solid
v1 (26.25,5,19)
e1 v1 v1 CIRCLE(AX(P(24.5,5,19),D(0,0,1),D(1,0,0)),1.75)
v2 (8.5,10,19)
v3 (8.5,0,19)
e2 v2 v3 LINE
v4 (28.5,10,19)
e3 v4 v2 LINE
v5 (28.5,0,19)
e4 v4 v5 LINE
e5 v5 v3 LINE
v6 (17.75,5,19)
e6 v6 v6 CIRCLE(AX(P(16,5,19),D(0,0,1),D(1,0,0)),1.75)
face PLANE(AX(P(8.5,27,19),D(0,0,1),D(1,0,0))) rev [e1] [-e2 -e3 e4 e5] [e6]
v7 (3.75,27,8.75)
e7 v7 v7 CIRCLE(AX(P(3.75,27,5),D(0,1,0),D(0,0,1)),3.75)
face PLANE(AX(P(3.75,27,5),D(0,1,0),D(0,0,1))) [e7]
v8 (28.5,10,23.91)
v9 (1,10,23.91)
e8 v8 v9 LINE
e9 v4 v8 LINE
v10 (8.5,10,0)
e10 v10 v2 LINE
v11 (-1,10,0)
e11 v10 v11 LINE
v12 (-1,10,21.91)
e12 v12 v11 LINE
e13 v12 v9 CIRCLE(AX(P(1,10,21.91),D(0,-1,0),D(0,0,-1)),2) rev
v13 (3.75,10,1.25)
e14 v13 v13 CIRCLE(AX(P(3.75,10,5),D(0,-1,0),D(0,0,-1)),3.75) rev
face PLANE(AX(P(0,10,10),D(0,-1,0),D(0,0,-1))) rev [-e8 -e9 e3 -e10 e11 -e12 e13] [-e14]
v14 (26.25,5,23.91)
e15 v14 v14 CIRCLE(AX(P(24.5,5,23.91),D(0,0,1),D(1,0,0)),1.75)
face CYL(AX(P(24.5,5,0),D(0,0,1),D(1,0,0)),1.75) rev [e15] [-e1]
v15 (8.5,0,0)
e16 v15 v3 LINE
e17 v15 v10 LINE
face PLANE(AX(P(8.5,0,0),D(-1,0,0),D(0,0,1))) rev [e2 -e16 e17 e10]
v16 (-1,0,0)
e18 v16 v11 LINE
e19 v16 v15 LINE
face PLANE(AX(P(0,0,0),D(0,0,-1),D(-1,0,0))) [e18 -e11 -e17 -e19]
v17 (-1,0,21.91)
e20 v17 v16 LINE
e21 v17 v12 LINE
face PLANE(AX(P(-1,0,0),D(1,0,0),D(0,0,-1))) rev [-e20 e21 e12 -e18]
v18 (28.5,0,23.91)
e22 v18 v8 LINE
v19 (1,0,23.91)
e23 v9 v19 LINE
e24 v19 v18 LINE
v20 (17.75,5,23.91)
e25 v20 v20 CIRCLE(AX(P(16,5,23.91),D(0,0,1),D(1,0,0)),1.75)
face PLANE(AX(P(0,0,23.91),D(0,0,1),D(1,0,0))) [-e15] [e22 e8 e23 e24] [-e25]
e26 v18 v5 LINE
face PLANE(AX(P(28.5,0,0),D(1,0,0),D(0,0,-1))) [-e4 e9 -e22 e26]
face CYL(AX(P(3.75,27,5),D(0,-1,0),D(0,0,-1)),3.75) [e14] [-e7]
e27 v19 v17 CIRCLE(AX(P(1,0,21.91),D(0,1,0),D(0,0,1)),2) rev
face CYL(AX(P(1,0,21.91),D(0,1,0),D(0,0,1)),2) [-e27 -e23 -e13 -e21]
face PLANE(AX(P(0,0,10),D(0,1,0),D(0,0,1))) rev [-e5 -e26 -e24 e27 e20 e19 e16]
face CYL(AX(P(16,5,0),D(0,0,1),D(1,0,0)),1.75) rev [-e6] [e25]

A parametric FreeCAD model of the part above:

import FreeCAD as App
import Part
import Sketcher

V = App.Vector


def edges_at(feature, points):
    """Names of the edges that pass closest to the given points."""
    edges = feature.Shape.Edges
    near = lambda p: min(range(len(edges)), key=lambda i: edges[i].distToShape(Part.Vertex(*p))[0])
    return sorted({f"Edge{near(p) + 1}" for p in points})

doc = App.newDocument("Part")
params = doc.addObject("Spreadsheet::Sheet", "Params")
for row, (alias, value) in enumerate([
    ("sketch1_height", "10 mm"),
    ("sketch1_width", "12.5 mm"),
    ("pad1_length", "10 mm"),
    ("sketch2_width", "10 mm"),
    ("pad2_length", "5 mm"),
    ("sketch3_diameter", "7.5 mm"),
    ("pad3_length", "17 mm"),
    ("sketch4_width", "4 mm"),
    ("sketch4_height", "10 mm"),
    ("sketch5_height", "10 mm"),
    ("sketch5_width", "9.5 mm"),
    ("pad4_length", "12.5 mm"),
    ("sketch6_width", "10 mm"),
    ("sketch6_height", "5 mm"),
    ("pad5_length", "30 mm"),
    ("sketch7_diameter", "3.5 mm"),
    ("sketch8_width", "30 mm"),
    ("sketch8_height", "5 mm"),
    ("pocket3_length", "10 mm"),
    ("sketch9_height", "10 mm"),
    ("sketch9_width", "9.5 mm"),
    ("pocket4_length", "3.49 mm"),
    ("sketch10_height", "10 mm"),
    ("sketch10_width", "9.5 mm"),
    ("pad6_length", "3.9 mm"),
    ("sketch11_width", "10 mm"),
    ("sketch11_height", "4 mm"),
    ("pad7_length", "20 mm"),
    ("sketch12_width", "20 mm"),
    ("sketch12_height", "0.09 mm"),
    ("sketch13_diameter", "3.5 mm"),
    ("sketch14_diameter", "3.5 mm"),
    ("sketch14_height", "10 mm"),
    ("sketch14_width", "29.5 mm"),
    ("pad8_length", "1 mm"),
    ("fillet_radius", "2 mm"),
], start=1):
    params.set(f"A{row}", alias)
    params.set(f"B{row}", "=" + value)
    params.setAlias(f"B{row}", alias)

body = doc.addObject("PartDesign::Body", "Body")

# Sketch on XY plane
sketch1 = body.newObject("Sketcher::SketchObject", "Sketch")
sketch1.AttachmentSupport = (doc.getObject("XY_Plane"), [""])
sketch1.MapMode = "FlatFace"
sketch1.addGeometry([
    Part.LineSegment(V(0, 10, 0), V(0, 0, 0)),
    Part.LineSegment(V(0, 0, 0), V(12, 0, 0)),
    Part.LineSegment(V(12, 0, 0), V(12, 10, 0)),
    Part.LineSegment(V(12, 10, 0), V(0, 10, 0)),
], False)
sketch1.addConstraint([
    Sketcher.Constraint("Coincident", 0, 2, 1, 1),
    Sketcher.Constraint("Coincident", 1, 2, 2, 1),
    Sketcher.Constraint("Coincident", 2, 2, 3, 1),
    Sketcher.Constraint("Coincident", 3, 2, 0, 1),
    Sketcher.Constraint("Vertical", 0),
    Sketcher.Constraint("Horizontal", 1),
    Sketcher.Constraint("Vertical", 2),
    Sketcher.Constraint("Horizontal", 3),
    Sketcher.Constraint("Coincident", 0, 2, -1, 1),
    Sketcher.Constraint("DistanceY", 0, 2, 0, 1, 10.0),
    Sketcher.Constraint("DistanceX", 1, 1, 1, 2, 12.5),
])
sketch1.setExpression("Constraints[9]", "Params.sketch1_height")
sketch1.setExpression("Constraints[10]", "Params.sketch1_width")
pad1 = body.newObject("PartDesign::Pad", "Pad")
pad1.Profile = sketch1
pad1.setExpression("Length", "Params.pad1_length")

# Sketch on YZ plane
sketch2 = body.newObject("Sketcher::SketchObject", "Sketch001")
sketch2.AttachmentSupport = (doc.getObject("YZ_Plane"), [""])
sketch2.MapMode = "FlatFace"
sketch2.addGeometry([
    Part.LineSegment(V(10, 0, 0), V(0, 0, 0)),
    Part.LineSegment(V(0, 0, 0), V(0, 10, 0)),
    Part.LineSegment(V(0, 10, 0), V(10, 10, 0)),
    Part.LineSegment(V(10, 10, 0), V(10, 0, 0)),
], False)
sketch2.addConstraint([
    Sketcher.Constraint("Coincident", 0, 2, 1, 1),
    Sketcher.Constraint("Coincident", 1, 2, 2, 1),
    Sketcher.Constraint("Coincident", 2, 2, 3, 1),
    Sketcher.Constraint("Coincident", 3, 2, 0, 1),
    Sketcher.Constraint("Horizontal", 0),
    Sketcher.Constraint("Vertical", 1),
    Sketcher.Constraint("Horizontal", 2),
    Sketcher.Constraint("Vertical", 3),
    Sketcher.Constraint("Coincident", 0, 2, -1, 1),
    Sketcher.Constraint("Equal", 2, 1),
    Sketcher.Constraint("DistanceX", 0, 2, 0, 1, 10.0),
])
sketch2.setExpression("Constraints[10]", "Params.sketch2_width")
pad2 = body.newObject("PartDesign::Pad", "Pad001")
pad2.Profile = sketch2
pad2.setExpression("Length", "Params.pad2_length")
pad2.Reversed = True

# Sketch on XZ plane
sketch3 = body.newObject("Sketcher::SketchObject", "Sketch002")
sketch3.AttachmentSupport = (doc.getObject("XZ_Plane"), [""])
sketch3.MapMode = "FlatFace"
sketch3.AttachmentOffset = App.Placement(V(0, 0, -10), App.Rotation())
sketch3.addGeometry(Part.Circle(V(3.8, 5, 0), V(0, 0, 1), 3.8), False)
sketch3.addConstraint([
    Sketcher.Constraint("Diameter", 0, 7.5),
    Sketcher.Constraint("DistanceY", -1, 1, 0, 3, 5.0),
    Sketcher.Constraint("DistanceX", -1, 1, 0, 3, 3.75),
])
sketch3.setExpression("Constraints[0]", "Params.sketch3_diameter")
pad3 = body.newObject("PartDesign::Pad", "Pad002")
pad3.Profile = sketch3
pad3.setExpression("Length", "Params.pad3_length")
pad3.Reversed = True

# Sketch on XZ plane
sketch4 = body.newObject("Sketcher::SketchObject", "Sketch003")
sketch4.AttachmentSupport = (doc.getObject("XZ_Plane"), [""])
sketch4.MapMode = "FlatFace"
sketch4.AttachmentOffset = App.Placement(V(0, 0, -10), App.Rotation())
sketch4.addGeometry([
    Part.LineSegment(V(8.5, 0, 0), V(8.5, 10, 0)),  # 0
    Part.LineSegment(V(8.5, 10, 0), V(12.5, 10, 0)),  # 1
    Part.LineSegment(V(12.5, 10, 0), V(12.5, 0, 0)),  # 2
    Part.LineSegment(V(12.5, 0, 0), V(8.5, 0, 0)),  # 3
    Part.LineSegment(V(-5, 0, 0), V(-5, 10, 0)),  # 4
    Part.LineSegment(V(-5, 10, 0), V(-1, 10, 0)),  # 5
    Part.LineSegment(V(-1, 10, 0), V(-1, 0, 0)),  # 6
    Part.LineSegment(V(-1, 0, 0), V(-5, 0, 0)),  # 7
], False)
sketch4.addConstraint([
    Sketcher.Constraint("Coincident", 0, 2, 1, 1),
    Sketcher.Constraint("Coincident", 1, 2, 2, 1),
    Sketcher.Constraint("Coincident", 2, 2, 3, 1),
    Sketcher.Constraint("Coincident", 3, 2, 0, 1),
    Sketcher.Constraint("Coincident", 4, 2, 5, 1),
    Sketcher.Constraint("Coincident", 5, 2, 6, 1),
    Sketcher.Constraint("Coincident", 6, 2, 7, 1),
    Sketcher.Constraint("Coincident", 7, 2, 4, 1),
    Sketcher.Constraint("Vertical", 0),
    Sketcher.Constraint("Horizontal", 1),
    Sketcher.Constraint("Vertical", 2),
    Sketcher.Constraint("Horizontal", 3),
    Sketcher.Constraint("Vertical", 4),
    Sketcher.Constraint("Horizontal", 5),
    Sketcher.Constraint("Vertical", 6),
    Sketcher.Constraint("Horizontal", 7),
    Sketcher.Constraint("PointOnObject", 2, 2, -1),
    Sketcher.Constraint("PointOnObject", 6, 2, -1),
    Sketcher.Constraint("Horizontal", 1, 2, 4, 2),
    Sketcher.Constraint("Equal", 3, 5),
    Sketcher.Constraint("DistanceX", 1, 1, 1, 2, 4.0),
    Sketcher.Constraint("DistanceY", 0, 1, 0, 2, 10.0),
    Sketcher.Constraint("DistanceX", 4, 2, -1, 1, 5.0),
    Sketcher.Constraint("DistanceX", -1, 1, 0, 2, 8.5),
])
sketch4.setExpression("Constraints[20]", "Params.sketch4_width")
sketch4.setExpression("Constraints[21]", "Params.sketch4_height")
pocket1 = body.newObject("PartDesign::Pocket", "Pocket")
pocket1.Profile = sketch4
pocket1.Type = "ThroughAll"
pocket1.Reversed = True

# Sketch on XY plane
sketch5 = body.newObject("Sketcher::SketchObject", "Sketch004")
sketch5.AttachmentSupport = (doc.getObject("XY_Plane"), [""])
sketch5.MapMode = "FlatFace"
sketch5.AttachmentOffset = App.Placement(V(0, 0, 10), App.Rotation())
sketch5.addGeometry([
    Part.LineSegment(V(-1, 10, 0), V(-1, 0, 0)),
    Part.LineSegment(V(-1, 0, 0), V(8, 0, 0)),
    Part.LineSegment(V(8, 0, 0), V(8, 10, 0)),
    Part.LineSegment(V(8, 10, 0), V(-1, 10, 0)),
], False)
sketch5.addConstraint([
    Sketcher.Constraint("Coincident", 0, 2, 1, 1),
    Sketcher.Constraint("Coincident", 1, 2, 2, 1),
    Sketcher.Constraint("Coincident", 2, 2, 3, 1),
    Sketcher.Constraint("Coincident", 3, 2, 0, 1),
    Sketcher.Constraint("Vertical", 0),
    Sketcher.Constraint("Horizontal", 1),
    Sketcher.Constraint("Vertical", 2),
    Sketcher.Constraint("Horizontal", 3),
    Sketcher.Constraint("PointOnObject", 0, 2, -1),
    Sketcher.Constraint("DistanceY", 0, 2, 0, 1, 10.0),
    Sketcher.Constraint("DistanceX", 1, 1, 1, 2, 9.5),
    Sketcher.Constraint("DistanceX", 0, 2, -1, 1, 1.0),
])
sketch5.setExpression("Constraints[9]", "Params.sketch5_height")
sketch5.setExpression("Constraints[10]", "Params.sketch5_width")
pad4 = body.newObject("PartDesign::Pad", "Pad003")
pad4.Profile = sketch5
pad4.setExpression("Length", "Params.pad4_length")

# Sketch on YZ plane
sketch6 = body.newObject("Sketcher::SketchObject", "Sketch005")
sketch6.AttachmentSupport = (doc.getObject("YZ_Plane"), [""])
sketch6.MapMode = "FlatFace"
sketch6.AttachmentOffset = App.Placement(V(0, 0, 8.5), App.Rotation())
sketch6.addGeometry([
    Part.LineSegment(V(10, 22, 0), V(0, 22, 0)),
    Part.LineSegment(V(0, 22, 0), V(0, 18, 0)),
    Part.LineSegment(V(0, 18, 0), V(10, 18, 0)),
    Part.LineSegment(V(10, 18, 0), V(10, 22, 0)),
], False)
sketch6.addConstraint([
    Sketcher.Constraint("Coincident", 0, 2, 1, 1),
    Sketcher.Constraint("Coincident", 1, 2, 2, 1),
    Sketcher.Constraint("Coincident", 2, 2, 3, 1),
    Sketcher.Constraint("Coincident", 3, 2, 0, 1),
    Sketcher.Constraint("Horizontal", 0),
    Sketcher.Constraint("Vertical", 1),
    Sketcher.Constraint("Horizontal", 2),
    Sketcher.Constraint("Vertical", 3),
    Sketcher.Constraint("PointOnObject", 0, 2, -2),
    Sketcher.Constraint("DistanceX", 0, 2, 0, 1, 10.0),
    Sketcher.Constraint("DistanceY", 1, 2, 1, 1, 5.0),
    Sketcher.Constraint("DistanceY", -1, 1, 0, 2, 22.5),
])
sketch6.setExpression("Constraints[9]", "Params.sketch6_width")
sketch6.setExpression("Constraints[10]", "Params.sketch6_height")
pad5 = body.newObject("PartDesign::Pad", "Pad004")
pad5.Profile = sketch6
pad5.setExpression("Length", "Params.pad5_length")

# Sketch on XY plane
sketch7 = body.newObject("Sketcher::SketchObject", "Sketch006")
sketch7.AttachmentSupport = (doc.getObject("XY_Plane"), [""])
sketch7.MapMode = "FlatFace"
sketch7.AttachmentOffset = App.Placement(V(0, 0, 22.5), App.Rotation())
sketch7.addGeometry([
    Part.Circle(V(22.5, 5, 0), V(0, 0, 1), 1.8),
    Part.Circle(V(33.5, 5, 0), V(0, 0, 1), 1.8),
], False)
sketch7.addConstraint([
    Sketcher.Constraint("Equal", 0, 1),
    Sketcher.Constraint("Horizontal", 0, 3, 1, 3),
    Sketcher.Constraint("Diameter", 0, 3.5),
    Sketcher.Constraint("DistanceY", -1, 1, 0, 3, 5.0),
    Sketcher.Constraint("DistanceX", 0, 3, 1, 3, 11.0),
    Sketcher.Constraint("DistanceX", -1, 1, 0, 3, 22.5),
])
sketch7.setExpression("Constraints[2]", "Params.sketch7_diameter")
pocket2 = body.newObject("PartDesign::Pocket", "Pocket001")
pocket2.Profile = sketch7
pocket2.Type = "ThroughAll"

# Sketch on XZ plane
sketch8 = body.newObject("Sketcher::SketchObject", "Sketch007")
sketch8.AttachmentSupport = (doc.getObject("XZ_Plane"), [""])
sketch8.MapMode = "FlatFace"
sketch8.AttachmentOffset = App.Placement(V(0, 0, -10), App.Rotation())
sketch8.addGeometry([
    Part.LineSegment(V(8, 18, 0), V(8, 22, 0)),
    Part.LineSegment(V(8, 22, 0), V(38, 22, 0)),
    Part.LineSegment(V(38, 22, 0), V(38, 18, 0)),
    Part.LineSegment(V(38, 18, 0), V(8, 18, 0)),
], False)
sketch8.addConstraint([
    Sketcher.Constraint("Coincident", 0, 2, 1, 1),
    Sketcher.Constraint("Coincident", 1, 2, 2, 1),
    Sketcher.Constraint("Coincident", 2, 2, 3, 1),
    Sketcher.Constraint("Coincident", 3, 2, 0, 1),
    Sketcher.Constraint("Vertical", 0),
    Sketcher.Constraint("Horizontal", 1),
    Sketcher.Constraint("Vertical", 2),
    Sketcher.Constraint("Horizontal", 3),
    Sketcher.Constraint("DistanceX", 1, 1, 1, 2, 30.0),
    Sketcher.Constraint("DistanceY", 0, 1, 0, 2, 5.0),
    Sketcher.Constraint("DistanceX", -1, 1, 0, 2, 8.5),
    Sketcher.Constraint("DistanceY", -1, 1, 0, 2, 22.5),
])
sketch8.setExpression("Constraints[8]", "Params.sketch8_width")
sketch8.setExpression("Constraints[9]", "Params.sketch8_height")
pocket3 = body.newObject("PartDesign::Pocket", "Pocket002")
pocket3.Profile = sketch8
pocket3.setExpression("Length", "Params.pocket3_length")
pocket3.Reversed = True

# Sketch on XY plane
sketch9 = body.newObject("Sketcher::SketchObject", "Sketch008")
sketch9.AttachmentSupport = (doc.getObject("XY_Plane"), [""])
sketch9.MapMode = "FlatFace"
sketch9.AttachmentOffset = App.Placement(V(0, 0, 22.5), App.Rotation())
sketch9.addGeometry([
    Part.LineSegment(V(-1, 10, 0), V(-1, 0, 0)),
    Part.LineSegment(V(-1, 0, 0), V(8, 0, 0)),
    Part.LineSegment(V(8, 0, 0), V(8, 10, 0)),
    Part.LineSegment(V(8, 10, 0), V(-1, 10, 0)),
], False)
sketch9.addConstraint([
    Sketcher.Constraint("Coincident", 0, 2, 1, 1),
    Sketcher.Constraint("Coincident", 1, 2, 2, 1),
    Sketcher.Constraint("Coincident", 2, 2, 3, 1),
    Sketcher.Constraint("Coincident", 3, 2, 0, 1),
    Sketcher.Constraint("Vertical", 0),
    Sketcher.Constraint("Horizontal", 1),
    Sketcher.Constraint("Vertical", 2),
    Sketcher.Constraint("Horizontal", 3),
    Sketcher.Constraint("PointOnObject", 0, 2, -1),
    Sketcher.Constraint("DistanceY", 0, 2, 0, 1, 10.0),
    Sketcher.Constraint("DistanceX", 1, 1, 1, 2, 9.5),
    Sketcher.Constraint("DistanceX", 0, 2, -1, 1, 1.0),
])
sketch9.setExpression("Constraints[9]", "Params.sketch9_height")
sketch9.setExpression("Constraints[10]", "Params.sketch9_width")
pocket4 = body.newObject("PartDesign::Pocket", "Pocket003")
pocket4.Profile = sketch9
pocket4.setExpression("Length", "Params.pocket4_length")

# Sketch on XY plane
sketch10 = body.newObject("Sketcher::SketchObject", "Sketch009")
sketch10.AttachmentSupport = (doc.getObject("XY_Plane"), [""])
sketch10.MapMode = "FlatFace"
sketch10.AttachmentOffset = App.Placement(V(0, 0, 19.01), App.Rotation())
sketch10.addGeometry([
    Part.LineSegment(V(-1, 10, 0), V(-1, 0, 0)),
    Part.LineSegment(V(-1, 0, 0), V(8, 0, 0)),
    Part.LineSegment(V(8, 0, 0), V(8, 10, 0)),
    Part.LineSegment(V(8, 10, 0), V(-1, 10, 0)),
], False)
sketch10.addConstraint([
    Sketcher.Constraint("Coincident", 0, 2, 1, 1),
    Sketcher.Constraint("Coincident", 1, 2, 2, 1),
    Sketcher.Constraint("Coincident", 2, 2, 3, 1),
    Sketcher.Constraint("Coincident", 3, 2, 0, 1),
    Sketcher.Constraint("Vertical", 0),
    Sketcher.Constraint("Horizontal", 1),
    Sketcher.Constraint("Vertical", 2),
    Sketcher.Constraint("Horizontal", 3),
    Sketcher.Constraint("PointOnObject", 0, 2, -1),
    Sketcher.Constraint("DistanceY", 0, 2, 0, 1, 10.0),
    Sketcher.Constraint("DistanceX", 1, 1, 1, 2, 9.5),
    Sketcher.Constraint("DistanceX", 0, 2, -1, 1, 1.0),
])
sketch10.setExpression("Constraints[9]", "Params.sketch10_height")
sketch10.setExpression("Constraints[10]", "Params.sketch10_width")
pad6 = body.newObject("PartDesign::Pad", "Pad005")
pad6.Profile = sketch10
pad6.setExpression("Length", "Params.pad6_length")

# Sketch on YZ plane
sketch11 = body.newObject("Sketcher::SketchObject", "Sketch010")
sketch11.AttachmentSupport = (doc.getObject("YZ_Plane"), [""])
sketch11.MapMode = "FlatFace"
sketch11.AttachmentOffset = App.Placement(V(0, 0, 8.5), App.Rotation())
sketch11.addGeometry([
    Part.LineSegment(V(10, 22.9, 0), V(0, 22.9, 0)),
    Part.LineSegment(V(0, 22.9, 0), V(0, 18.9, 0)),
    Part.LineSegment(V(0, 18.9, 0), V(10, 18.9, 0)),
    Part.LineSegment(V(10, 18.9, 0), V(10, 22.9, 0)),
], False)
sketch11.addConstraint([
    Sketcher.Constraint("Coincident", 0, 2, 1, 1),
    Sketcher.Constraint("Coincident", 1, 2, 2, 1),
    Sketcher.Constraint("Coincident", 2, 2, 3, 1),
    Sketcher.Constraint("Coincident", 3, 2, 0, 1),
    Sketcher.Constraint("Horizontal", 0),
    Sketcher.Constraint("Vertical", 1),
    Sketcher.Constraint("Horizontal", 2),
    Sketcher.Constraint("Vertical", 3),
    Sketcher.Constraint("PointOnObject", 0, 2, -2),
    Sketcher.Constraint("DistanceX", 0, 2, 0, 1, 10.0),
    Sketcher.Constraint("DistanceY", 1, 2, 1, 1, 4.0),
    Sketcher.Constraint("DistanceY", -1, 1, 0, 2, 22.91),
])
sketch11.setExpression("Constraints[9]", "Params.sketch11_width")
sketch11.setExpression("Constraints[10]", "Params.sketch11_height")
pad7 = body.newObject("PartDesign::Pad", "Pad006")
pad7.Profile = sketch11
pad7.setExpression("Length", "Params.pad7_length")

# Sketch on XZ plane
sketch12 = body.newObject("Sketcher::SketchObject", "Sketch011")
sketch12.AttachmentSupport = (doc.getObject("XZ_Plane"), [""])
sketch12.MapMode = "FlatFace"
sketch12.addGeometry([
    Part.LineSegment(V(28.5, 18.91, 0), V(28.5, 19, 0)),
    Part.LineSegment(V(28.5, 19, 0), V(8.5, 19, 0)),
    Part.LineSegment(V(8.5, 19, 0), V(8.5, 18.91, 0)),
    Part.LineSegment(V(8.5, 18.91, 0), V(28.5, 18.91, 0)),
], False)
sketch12.addConstraint([
    Sketcher.Constraint("Coincident", 0, 2, 1, 1),
    Sketcher.Constraint("Coincident", 1, 2, 2, 1),
    Sketcher.Constraint("Coincident", 2, 2, 3, 1),
    Sketcher.Constraint("Coincident", 3, 2, 0, 1),
    Sketcher.Constraint("Vertical", 0),
    Sketcher.Constraint("Horizontal", 1),
    Sketcher.Constraint("Vertical", 2),
    Sketcher.Constraint("Horizontal", 3),
    Sketcher.Constraint("DistanceX", 1, 2, 1, 1, 20.0),
    Sketcher.Constraint("DistanceY", -1, 1, 0, 2, 19.0),
    Sketcher.Constraint("DistanceY", 0, 1, 0, 2, 0.09),
    Sketcher.Constraint("DistanceX", -1, 1, 0, 2, 28.5),
])
sketch12.setExpression("Constraints[8]", "Params.sketch12_width")
sketch12.setExpression("Constraints[10]", "Params.sketch12_height")
pocket5 = body.newObject("PartDesign::Pocket", "Pocket004")
pocket5.Profile = sketch12
pocket5.Type = "ThroughAll"

# Sketch on XY plane
sketch13 = body.newObject("Sketcher::SketchObject", "Sketch012")
sketch13.AttachmentSupport = (doc.getObject("XY_Plane"), [""])
sketch13.MapMode = "FlatFace"
sketch13.AttachmentOffset = App.Placement(V(0, 0, 22.91), App.Rotation())
sketch13.addGeometry([
    Part.Circle(V(16, 5, 0), V(0, 0, 1), 1.8),
    Part.Circle(V(24.5, 5, 0), V(0, 0, 1), 1.8),
], False)
sketch13.addConstraint([
    Sketcher.Constraint("Equal", 0, 1),
    Sketcher.Constraint("Horizontal", 0, 3, 1, 3),
    Sketcher.Constraint("Diameter", 0, 3.5),
    Sketcher.Constraint("DistanceX", -1, 1, 0, 3, 16.0),
    Sketcher.Constraint("DistanceY", -1, 1, 0, 3, 5.0),
    Sketcher.Constraint("DistanceX", -1, 1, 1, 3, 24.5),
])
sketch13.setExpression("Constraints[2]", "Params.sketch13_diameter")
pocket6 = body.newObject("PartDesign::Pocket", "Pocket005")
pocket6.Profile = sketch13
pocket6.Type = "ThroughAll"

# Sketch on XY plane
sketch14 = body.newObject("Sketcher::SketchObject", "Sketch013")
sketch14.AttachmentSupport = (doc.getObject("XY_Plane"), [""])
sketch14.MapMode = "FlatFace"
sketch14.AttachmentOffset = App.Placement(V(0, 0, 22.91), App.Rotation())
sketch14.addGeometry([
    Part.LineSegment(V(-1, 10, 0), V(-1, 0, 0)),  # 0
    Part.LineSegment(V(-1, 0, 0), V(28.5, 0, 0)),  # 1
    Part.LineSegment(V(28.5, 0, 0), V(28.5, 10, 0)),  # 2
    Part.LineSegment(V(28.5, 10, 0), V(-1, 10, 0)),  # 3
    Part.Circle(V(16, 5, 0), V(0, 0, 1), 1.8),  # 4
    Part.Circle(V(24.5, 5, 0), V(0, 0, 1), 1.8),  # 5
], False)
sketch14.addConstraint([
    Sketcher.Constraint("Coincident", 0, 2, 1, 1),
    Sketcher.Constraint("Coincident", 1, 2, 2, 1),
    Sketcher.Constraint("Coincident", 2, 2, 3, 1),
    Sketcher.Constraint("Coincident", 3, 2, 0, 1),
    Sketcher.Constraint("Vertical", 0),
    Sketcher.Constraint("Horizontal", 1),
    Sketcher.Constraint("Vertical", 2),
    Sketcher.Constraint("Horizontal", 3),
    Sketcher.Constraint("Equal", 4, 5),
    Sketcher.Constraint("PointOnObject", 0, 2, -1),
    Sketcher.Constraint("Horizontal", 4, 3, 5, 3),
    Sketcher.Constraint("Diameter", 4, 3.5),
    Sketcher.Constraint("DistanceY", 0, 2, 0, 1, 10.0),
    Sketcher.Constraint("DistanceX", 1, 1, 1, 2, 29.5),
    Sketcher.Constraint("DistanceX", -1, 1, 4, 3, 16.0),
    Sketcher.Constraint("DistanceY", -1, 1, 4, 3, 5.0),
    Sketcher.Constraint("DistanceX", 0, 2, -1, 1, 1.0),
    Sketcher.Constraint("DistanceX", 5, 3, 1, 2, 4.0),
])
sketch14.setExpression("Constraints[11]", "Params.sketch14_diameter")
sketch14.setExpression("Constraints[12]", "Params.sketch14_height")
sketch14.setExpression("Constraints[13]", "Params.sketch14_width")
pad8 = body.newObject("PartDesign::Pad", "Pad007")
pad8.Profile = sketch14
pad8.setExpression("Length", "Params.pad8_length")
doc.recompute()

fillet = body.newObject("PartDesign::Fillet", "Fillet")
fillet.Base = (pad8, edges_at(pad8, [(-1, 5, 23.91)]))
fillet.setExpression("Radius", "Params.fillet_radius")

doc.recompute()
